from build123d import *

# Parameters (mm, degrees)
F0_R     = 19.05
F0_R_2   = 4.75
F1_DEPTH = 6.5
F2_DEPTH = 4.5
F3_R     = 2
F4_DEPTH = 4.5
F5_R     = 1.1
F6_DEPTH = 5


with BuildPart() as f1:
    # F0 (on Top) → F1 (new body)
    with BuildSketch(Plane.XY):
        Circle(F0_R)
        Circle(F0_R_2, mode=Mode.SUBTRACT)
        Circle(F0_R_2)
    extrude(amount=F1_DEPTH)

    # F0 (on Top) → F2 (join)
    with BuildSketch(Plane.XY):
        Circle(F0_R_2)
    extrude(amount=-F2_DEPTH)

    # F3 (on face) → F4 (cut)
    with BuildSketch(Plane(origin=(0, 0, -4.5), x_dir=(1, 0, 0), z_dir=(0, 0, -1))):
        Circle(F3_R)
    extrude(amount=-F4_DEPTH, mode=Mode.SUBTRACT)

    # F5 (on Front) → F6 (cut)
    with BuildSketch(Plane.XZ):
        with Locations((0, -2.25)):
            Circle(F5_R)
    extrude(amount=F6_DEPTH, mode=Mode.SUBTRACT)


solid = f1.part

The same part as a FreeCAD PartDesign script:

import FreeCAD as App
import Part
import Sketcher

doc = App.newDocument("Part")
body = doc.addObject("PartDesign::Body", "Body")

# Sketch on XY plane
sketch1 = body.newObject("Sketcher::SketchObject", "Sketch")
sketch1.AttachmentSupport = (doc.getObject("XY_Plane"), [""])
sketch1.MapMode = "FlatFace"
sketch1.addGeometry(Part.Circle(App.Vector(0, 0, 0), App.Vector(0, 0, 1), 19), False)
sketch1.addConstraint(Sketcher.Constraint("Coincident", 0, 3, -1, 1))
sketch1.addConstraint(Sketcher.Constraint("Diameter", 0, 38.1))
pad1 = body.newObject("PartDesign::Pad", "Pad")
pad1.Profile = sketch1
pad1.Length = 6.5

# Sketch on XY plane
sketch2 = body.newObject("Sketcher::SketchObject", "Sketch001")
sketch2.AttachmentSupport = (doc.getObject("XY_Plane"), [""])
sketch2.MapMode = "FlatFace"
sketch2.addGeometry(Part.Circle(App.Vector(0, 0, 0), App.Vector(0, 0, 1), 4.8), False)
sketch2.addConstraint(Sketcher.Constraint("Coincident", 0, 3, -1, 1))
sketch2.addConstraint(Sketcher.Constraint("Diameter", 0, 9.5))
pad2 = body.newObject("PartDesign::Pad", "Pad001")
pad2.Profile = sketch2
pad2.Length = 4.5
pad2.Reversed = True

# Sketch on XY plane
sketch3 = body.newObject("Sketcher::SketchObject", "Sketch002")
sketch3.AttachmentSupport = (doc.getObject("XY_Plane"), [""])
sketch3.MapMode = "FlatFace"
sketch3.AttachmentOffset = App.Placement(App.Vector(0, 0, -4.5), App.Rotation())
sketch3.addGeometry(Part.Circle(App.Vector(0, 0, 0), App.Vector(0, 0, 1), 2), False)
sketch3.addConstraint(Sketcher.Constraint("Coincident", 0, 3, -1, 1))
sketch3.addConstraint(Sketcher.Constraint("Diameter", 0, 4.0))
pocket1 = body.newObject("PartDesign::Pocket", "Pocket")
pocket1.Profile = sketch3
pocket1.Length = 4.5
pocket1.Reversed = True

# Sketch on XZ plane
sketch4 = body.newObject("Sketcher::SketchObject", "Sketch003")
sketch4.AttachmentSupport = (doc.getObject("XZ_Plane"), [""])
sketch4.MapMode = "FlatFace"
sketch4.addGeometry(Part.Circle(App.Vector(0, -2.2, 0), App.Vector(0, 0, 1), 1.1), False)
sketch4.addConstraint(Sketcher.Constraint("PointOnObject", 0, 3, -2))
sketch4.addConstraint(Sketcher.Constraint("Diameter", 0, 2.2))
sketch4.addConstraint(Sketcher.Constraint("DistanceY", 0, 3, -1, 1, 2.25))
pocket2 = body.newObject("PartDesign::Pocket", "Pocket001")
pocket2.Profile = sketch4
pocket2.Length = 5
pocket2.Reversed = True

doc.recompute()
